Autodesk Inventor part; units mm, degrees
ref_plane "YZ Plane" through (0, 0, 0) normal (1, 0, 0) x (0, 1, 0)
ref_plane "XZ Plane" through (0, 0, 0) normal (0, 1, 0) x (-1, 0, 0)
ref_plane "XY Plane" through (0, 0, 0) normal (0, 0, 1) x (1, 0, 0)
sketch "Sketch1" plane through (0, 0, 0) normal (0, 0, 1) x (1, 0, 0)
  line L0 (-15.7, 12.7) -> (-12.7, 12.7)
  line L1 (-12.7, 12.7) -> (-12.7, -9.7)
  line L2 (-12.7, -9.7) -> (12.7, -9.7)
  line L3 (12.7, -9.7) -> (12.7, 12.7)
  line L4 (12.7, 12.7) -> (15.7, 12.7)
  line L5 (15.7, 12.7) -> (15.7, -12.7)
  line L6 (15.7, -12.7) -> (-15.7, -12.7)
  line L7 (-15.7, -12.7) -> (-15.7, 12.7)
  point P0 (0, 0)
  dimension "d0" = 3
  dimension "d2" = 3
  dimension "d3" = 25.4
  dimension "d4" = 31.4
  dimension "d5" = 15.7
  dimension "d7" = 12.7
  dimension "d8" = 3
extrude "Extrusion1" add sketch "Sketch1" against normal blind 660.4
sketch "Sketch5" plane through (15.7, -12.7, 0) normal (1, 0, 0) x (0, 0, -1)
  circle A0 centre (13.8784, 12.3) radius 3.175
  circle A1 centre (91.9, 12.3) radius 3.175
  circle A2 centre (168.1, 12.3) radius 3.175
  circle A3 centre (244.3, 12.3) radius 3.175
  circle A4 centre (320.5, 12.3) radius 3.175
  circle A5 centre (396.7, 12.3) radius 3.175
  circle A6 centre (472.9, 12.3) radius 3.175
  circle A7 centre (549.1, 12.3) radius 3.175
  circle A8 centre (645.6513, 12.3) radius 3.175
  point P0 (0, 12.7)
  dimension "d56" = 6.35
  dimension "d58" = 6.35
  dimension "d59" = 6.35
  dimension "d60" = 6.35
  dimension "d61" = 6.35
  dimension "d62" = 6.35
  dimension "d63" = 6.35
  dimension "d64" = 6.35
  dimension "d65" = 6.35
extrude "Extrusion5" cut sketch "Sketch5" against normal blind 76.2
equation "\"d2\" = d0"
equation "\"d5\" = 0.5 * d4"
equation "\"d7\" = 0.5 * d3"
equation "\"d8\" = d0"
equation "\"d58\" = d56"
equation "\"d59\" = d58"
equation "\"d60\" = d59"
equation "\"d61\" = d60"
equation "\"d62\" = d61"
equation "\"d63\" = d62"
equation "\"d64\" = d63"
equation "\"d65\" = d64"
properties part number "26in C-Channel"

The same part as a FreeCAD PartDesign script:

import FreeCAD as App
import Part
import Sketcher

V = App.Vector
Q = App.Units.Quantity

doc = App.newDocument("Part")
body = doc.addObject("PartDesign::Body", "Body")

# Sketch on XY plane
sketch1 = body.newObject("Sketcher::SketchObject", "Sketch")
sketch1.AttachmentSupport = (doc.getObject("XY_Plane"), [""])
sketch1.MapMode = "FlatFace"
sketch1.addGeometry([
    Part.LineSegment(V(-12.7, 12.7, 0), V(-15.7, 12.7, 0)),  # 0
    Part.LineSegment(V(-15.7, 12.7, 0), V(-15.7, -12.7, 0)),  # 1
    Part.LineSegment(V(-15.7, -12.7, 0), V(15.7, -12.7, 0)),  # 2
    Part.LineSegment(V(15.7, -12.7, 0), V(15.7, 12.7, 0)),  # 3
    Part.LineSegment(V(15.7, 12.7, 0), V(12.7, 12.7, 0)),  # 4
    Part.LineSegment(V(12.7, 12.7, 0), V(12.7, -9.7, 0)),  # 5
    Part.LineSegment(V(12.7, -9.7, 0), V(-12.7, -9.7, 0)),  # 6
    Part.LineSegment(V(-12.7, -9.7, 0), V(-12.7, 12.7, 0)),  # 7
], False)
sketch1.addConstraint([
    Sketcher.Constraint("Coincident", 0, 2, 1, 1),
    Sketcher.Constraint("Coincident", 1, 2, 2, 1),
    Sketcher.Constraint("Coincident", 2, 2, 3, 1),
    Sketcher.Constraint("Coincident", 3, 2, 4, 1),
    Sketcher.Constraint("Coincident", 4, 2, 5, 1),
    Sketcher.Constraint("Coincident", 5, 2, 6, 1),
    Sketcher.Constraint("Coincident", 6, 2, 7, 1),
    Sketcher.Constraint("Coincident", 7, 2, 0, 1),
    Sketcher.Constraint("Horizontal", 0),
    Sketcher.Constraint("Vertical", 1),
    Sketcher.Constraint("Horizontal", 2),
    Sketcher.Constraint("Vertical", 3),
    Sketcher.Constraint("Horizontal", 4),
    Sketcher.Constraint("Vertical", 5),
    Sketcher.Constraint("Horizontal", 6),
    Sketcher.Constraint("Vertical", 7),
    Sketcher.Constraint("Symmetric", 0, 2, 2, 2, -1, 1),
    Sketcher.Constraint("Symmetric", 4, 2, 7, 2, -2),
    Sketcher.Constraint("Equal", 6, 1),
    Sketcher.Constraint("DistanceX", 6, 2, 6, 1, Q("1 in")),
    Sketcher.Constraint("DistanceX", 0, 2, 0, 1, Q("0.1181 in")),
    Sketcher.Constraint("DistanceY", 2, 2, 5, 2, Q("0.1181 in")),
])
pad1 = body.newObject("PartDesign::Pad", "Pad")
pad1.Profile = sketch1
pad1.Length = Q("26 in")
pad1.Reversed = True

# Sketch on YZ plane
sketch2 = body.newObject("Sketcher::SketchObject", "Sketch001")
sketch2.AttachmentSupport = (doc.getObject("YZ_Plane"), [""])
sketch2.MapMode = "FlatFace"
sketch2.AttachmentOffset = App.Placement(V(0, 0, 0.6181102 * 25.4), App.Rotation())
sketch2.addGeometry([
    Part.Circle(V(-0.4, -13.9, 0), V(0, 0, 1), 3.2),  # 0
    Part.Circle(V(-0.4, -91.9, 0), V(0, 0, 1), 3.2),  # 1
    Part.Circle(V(-0.4, -168.1, 0), V(0, 0, 1), 3.2),  # 2
    Part.Circle(V(-0.4, -244.3, 0), V(0, 0, 1), 3.2),  # 3
    Part.Circle(V(-0.4, -320.5, 0), V(0, 0, 1), 3.2),  # 4
    Part.Circle(V(-0.4, -396.7, 0), V(0, 0, 1), 3.2),  # 5
    Part.Circle(V(-0.4, -472.9, 0), V(0, 0, 1), 3.2),  # 6
    Part.Circle(V(-0.4, -549.1, 0), V(0, 0, 1), 3.2),  # 7
    Part.Circle(V(-0.4, -645.7, 0), V(0, 0, 1), 3.2),  # 8
], False)
sketch2.addConstraint([
    Sketcher.Constraint("Equal", 0, 1),
    Sketcher.Constraint("Equal", 1, 2),
    Sketcher.Constraint("Equal", 2, 3),
    Sketcher.Constraint("Equal", 3, 4),
    Sketcher.Constraint("Equal", 4, 5),
    Sketcher.Constraint("Equal", 5, 6),
    Sketcher.Constraint("Equal", 6, 7),
    Sketcher.Constraint("Equal", 7, 8),
    Sketcher.Constraint("Vertical", 0, 3, 1, 3),
    Sketcher.Constraint("Vertical", 1, 3, 2, 3),
    Sketcher.Constraint("Vertical", 2, 3, 3, 3),
    Sketcher.Constraint("Vertical", 3, 3, 4, 3),
    Sketcher.Constraint("Vertical", 4, 3, 5, 3),
    Sketcher.Constraint("Vertical", 5, 3, 6, 3),
    Sketcher.Constraint("Vertical", 6, 3, 7, 3),
    Sketcher.Constraint("Vertical", 7, 3, 8, 3),
    Sketcher.Constraint("Diameter", 0, Q("0.25 in")),
    Sketcher.Constraint("DistanceY", 2, 3, 1, 3, Q("3 in")),
    Sketcher.Constraint("DistanceY", 3, 3, 2, 3, Q("3 in")),
    Sketcher.Constraint("DistanceY", 4, 3, 3, 3, Q("3 in")),
    Sketcher.Constraint("DistanceY", 5, 3, 4, 3, Q("3 in")),
    Sketcher.Constraint("DistanceY", 6, 3, 5, 3, Q("3 in")),
    Sketcher.Constraint("DistanceY", 7, 3, 6, 3, Q("3 in")),
    Sketcher.Constraint("DistanceY", 0, 3, -1, 1, Q("0.5464 in")),
    Sketcher.Constraint("DistanceY", 1, 3, -1, 1, Q("3.6181 in")),
    Sketcher.Constraint("DistanceX", 0, 3, -1, 1, Q("0.4 mm")),
    Sketcher.Constraint("DistanceY", 8, 3, -1, 1, Q("645.6513 mm")),
])
pocket1 = body.newObject("PartDesign::Pocket", "Pocket")
pocket1.Profile = sketch2
pocket1.Length = Q("3 in")

doc.recompute()
